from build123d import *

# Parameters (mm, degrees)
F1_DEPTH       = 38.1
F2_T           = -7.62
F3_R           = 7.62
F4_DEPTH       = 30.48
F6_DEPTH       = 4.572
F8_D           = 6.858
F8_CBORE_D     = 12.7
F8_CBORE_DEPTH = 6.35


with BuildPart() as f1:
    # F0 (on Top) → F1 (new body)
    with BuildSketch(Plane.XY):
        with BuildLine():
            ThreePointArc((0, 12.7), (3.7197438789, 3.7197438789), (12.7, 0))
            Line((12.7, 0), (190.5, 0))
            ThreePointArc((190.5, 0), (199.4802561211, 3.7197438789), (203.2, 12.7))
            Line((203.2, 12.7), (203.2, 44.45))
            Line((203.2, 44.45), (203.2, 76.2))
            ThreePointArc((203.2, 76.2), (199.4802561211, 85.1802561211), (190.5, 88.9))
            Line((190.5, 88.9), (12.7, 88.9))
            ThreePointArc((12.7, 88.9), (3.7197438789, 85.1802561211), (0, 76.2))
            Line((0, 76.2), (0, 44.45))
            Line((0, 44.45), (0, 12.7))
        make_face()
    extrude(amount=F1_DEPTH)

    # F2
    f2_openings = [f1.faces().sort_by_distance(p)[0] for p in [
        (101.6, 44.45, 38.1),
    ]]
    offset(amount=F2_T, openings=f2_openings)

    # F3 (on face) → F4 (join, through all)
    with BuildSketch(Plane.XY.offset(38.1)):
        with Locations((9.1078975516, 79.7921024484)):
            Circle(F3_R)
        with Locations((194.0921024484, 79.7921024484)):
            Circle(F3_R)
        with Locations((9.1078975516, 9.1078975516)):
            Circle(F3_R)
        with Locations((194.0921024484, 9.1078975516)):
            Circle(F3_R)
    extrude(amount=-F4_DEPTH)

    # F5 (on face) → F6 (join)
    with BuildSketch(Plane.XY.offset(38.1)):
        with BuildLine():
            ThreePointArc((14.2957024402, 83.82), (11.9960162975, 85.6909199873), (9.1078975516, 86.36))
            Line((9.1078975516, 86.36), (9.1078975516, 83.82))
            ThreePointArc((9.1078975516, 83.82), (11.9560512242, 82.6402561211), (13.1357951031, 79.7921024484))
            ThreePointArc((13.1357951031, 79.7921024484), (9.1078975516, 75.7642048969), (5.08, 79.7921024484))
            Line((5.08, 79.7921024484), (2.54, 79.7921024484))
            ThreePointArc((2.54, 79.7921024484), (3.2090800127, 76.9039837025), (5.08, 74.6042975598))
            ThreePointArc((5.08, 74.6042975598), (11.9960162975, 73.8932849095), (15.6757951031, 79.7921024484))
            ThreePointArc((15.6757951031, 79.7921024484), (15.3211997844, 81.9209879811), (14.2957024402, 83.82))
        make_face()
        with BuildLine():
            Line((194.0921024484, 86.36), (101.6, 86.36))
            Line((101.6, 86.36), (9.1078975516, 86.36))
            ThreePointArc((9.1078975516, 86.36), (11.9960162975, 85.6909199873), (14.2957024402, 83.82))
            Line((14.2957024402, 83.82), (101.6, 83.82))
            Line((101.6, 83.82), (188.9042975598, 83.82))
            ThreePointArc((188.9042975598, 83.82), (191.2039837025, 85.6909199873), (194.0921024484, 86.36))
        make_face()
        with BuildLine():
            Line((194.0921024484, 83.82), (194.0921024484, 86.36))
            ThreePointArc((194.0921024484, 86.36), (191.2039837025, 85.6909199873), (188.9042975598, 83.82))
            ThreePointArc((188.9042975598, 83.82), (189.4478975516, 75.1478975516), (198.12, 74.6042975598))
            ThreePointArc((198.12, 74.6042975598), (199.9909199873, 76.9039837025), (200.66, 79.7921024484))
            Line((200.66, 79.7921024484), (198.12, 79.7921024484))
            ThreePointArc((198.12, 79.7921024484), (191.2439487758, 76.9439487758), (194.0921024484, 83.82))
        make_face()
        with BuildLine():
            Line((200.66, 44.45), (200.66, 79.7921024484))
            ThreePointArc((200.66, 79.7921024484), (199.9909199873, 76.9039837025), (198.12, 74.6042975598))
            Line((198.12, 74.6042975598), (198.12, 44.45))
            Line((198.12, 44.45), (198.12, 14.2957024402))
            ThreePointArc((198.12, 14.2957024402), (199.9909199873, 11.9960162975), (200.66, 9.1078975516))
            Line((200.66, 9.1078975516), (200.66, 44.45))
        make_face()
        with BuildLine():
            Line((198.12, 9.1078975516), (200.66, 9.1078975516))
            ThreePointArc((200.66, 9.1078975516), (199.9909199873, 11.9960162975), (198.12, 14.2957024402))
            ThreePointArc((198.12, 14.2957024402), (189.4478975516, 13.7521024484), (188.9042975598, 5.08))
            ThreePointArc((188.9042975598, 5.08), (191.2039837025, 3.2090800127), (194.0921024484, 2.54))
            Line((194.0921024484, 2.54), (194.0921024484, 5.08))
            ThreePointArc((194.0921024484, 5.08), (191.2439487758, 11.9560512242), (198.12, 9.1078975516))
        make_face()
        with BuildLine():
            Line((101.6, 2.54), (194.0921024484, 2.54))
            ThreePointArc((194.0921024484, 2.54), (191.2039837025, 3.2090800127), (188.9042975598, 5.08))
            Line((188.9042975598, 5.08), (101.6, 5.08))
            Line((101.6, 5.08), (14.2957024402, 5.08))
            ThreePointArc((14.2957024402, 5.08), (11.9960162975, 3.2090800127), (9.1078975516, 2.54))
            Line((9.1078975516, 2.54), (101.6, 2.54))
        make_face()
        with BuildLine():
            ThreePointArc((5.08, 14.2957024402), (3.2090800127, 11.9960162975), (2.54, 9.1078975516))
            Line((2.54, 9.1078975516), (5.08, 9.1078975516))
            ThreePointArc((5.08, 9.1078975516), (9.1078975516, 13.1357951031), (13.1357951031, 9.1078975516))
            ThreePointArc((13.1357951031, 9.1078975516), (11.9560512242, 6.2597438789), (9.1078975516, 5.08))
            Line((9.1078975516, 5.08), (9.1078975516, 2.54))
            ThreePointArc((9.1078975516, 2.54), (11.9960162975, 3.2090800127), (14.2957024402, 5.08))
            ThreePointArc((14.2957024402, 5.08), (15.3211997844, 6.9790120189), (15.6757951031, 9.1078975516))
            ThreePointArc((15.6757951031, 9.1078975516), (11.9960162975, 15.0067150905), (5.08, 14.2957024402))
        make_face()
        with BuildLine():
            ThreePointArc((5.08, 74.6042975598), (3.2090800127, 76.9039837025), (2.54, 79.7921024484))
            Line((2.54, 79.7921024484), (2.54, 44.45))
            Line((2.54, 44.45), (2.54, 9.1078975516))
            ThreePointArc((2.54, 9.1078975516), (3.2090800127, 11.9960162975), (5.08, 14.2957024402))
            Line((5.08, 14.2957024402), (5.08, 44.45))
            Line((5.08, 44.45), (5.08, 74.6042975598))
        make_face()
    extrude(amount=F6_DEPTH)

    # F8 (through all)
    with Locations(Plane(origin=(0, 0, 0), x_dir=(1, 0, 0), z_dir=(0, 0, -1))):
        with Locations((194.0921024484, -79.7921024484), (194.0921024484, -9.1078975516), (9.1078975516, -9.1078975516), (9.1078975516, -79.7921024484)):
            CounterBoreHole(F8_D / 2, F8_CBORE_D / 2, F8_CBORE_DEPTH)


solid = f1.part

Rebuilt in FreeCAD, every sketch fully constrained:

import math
import FreeCAD as App
import Part
import Sketcher
Q = App.Units.Quantity


def faces_at(feature, points):
    """Names of the faces that lie closest to the given points."""
    faces = feature.Shape.Faces
    near = lambda p: min(range(len(faces)), key=lambda i: faces[i].distToShape(Part.Vertex(*p))[0])
    return sorted({f"Face{near(p) + 1}" for p in points})

doc = App.newDocument("Part")
body = doc.addObject("PartDesign::Body", "Body")

sketch1 = body.newObject("Sketcher::SketchObject", "Sketch")
sketch1.AttachmentSupport = (doc.getObject("XY_Plane"), [""])
sketch1.MapMode = "FlatFace"
sketch1.addGeometry(Part.ArcOfCircle(Part.Circle(App.Vector(12.7, 12.7, 0), App.Vector(0, 0, 1), 12.7), math.radians(180), math.radians(270)), False)
sketch1.addGeometry(Part.LineSegment(App.Vector(12.7, 0, 0), App.Vector(190.5, 0, 0)), False)
sketch1.addGeometry(Part.ArcOfCircle(Part.Circle(App.Vector(190.5, 12.7, 0), App.Vector(0, 0, 1), 12.7), math.radians(-90), math.radians(0)), False)
sketch1.addGeometry(Part.LineSegment(App.Vector(203.2, 12.7, 0), App.Vector(203.2, 76.2, 0)), False)
sketch1.addGeometry(Part.ArcOfCircle(Part.Circle(App.Vector(190.5, 76.2, 0), App.Vector(0, 0, 1), 12.7), math.radians(0), math.radians(90)), False)
sketch1.addGeometry(Part.LineSegment(App.Vector(190.5, 88.9, 0), App.Vector(12.7, 88.9, 0)), False)
sketch1.addGeometry(Part.ArcOfCircle(Part.Circle(App.Vector(12.7, 76.2, 0), App.Vector(0, 0, 1), 12.7), math.radians(90), math.radians(180)), False)
sketch1.addGeometry(Part.LineSegment(App.Vector(0, 76.2, 0), App.Vector(0, 12.7, 0)), False)
sketch1.addConstraint(Sketcher.Constraint("Tangent", 0, 2, 1, 1))
sketch1.addConstraint(Sketcher.Constraint("Tangent", 1, 2, 2, 1))
sketch1.addConstraint(Sketcher.Constraint("Tangent", 2, 2, 3, 1))
sketch1.addConstraint(Sketcher.Constraint("Tangent", 3, 2, 4, 1))
sketch1.addConstraint(Sketcher.Constraint("Tangent", 4, 2, 5, 1))
sketch1.addConstraint(Sketcher.Constraint("Tangent", 5, 2, 6, 1))
sketch1.addConstraint(Sketcher.Constraint("Tangent", 6, 2, 7, 1))
sketch1.addConstraint(Sketcher.Constraint("Tangent", 7, 2, 0, 1))
sketch1.addConstraint(Sketcher.Constraint("Horizontal", 1))
sketch1.addConstraint(Sketcher.Constraint("Vertical", 3))
sketch1.addConstraint(Sketcher.Constraint("Horizontal", 5))
sketch1.addConstraint(Sketcher.Constraint("Vertical", 7))
sketch1.addConstraint(Sketcher.Constraint("Equal", 0, 2))
sketch1.addConstraint(Sketcher.Constraint("Equal", 2, 4))
sketch1.addConstraint(Sketcher.Constraint("Equal", 4, 6))
sketch1.addConstraint(Sketcher.Constraint("PointOnObject", 0, 2, -1))
sketch1.addConstraint(Sketcher.Constraint("PointOnObject", 6, 2, -2))
sketch1.addConstraint(Sketcher.Constraint("Radius", 0, Q("0.5 in")))
sketch1.addConstraint(Sketcher.Constraint("DistanceX", 1, 1, 1, 2, Q("7 in")))
sketch1.addConstraint(Sketcher.Constraint("DistanceY", 3, 1, 3, 2, Q("2.5 in")))
pad1 = body.newObject("PartDesign::Pad", "Pad")
pad1.Profile = sketch1
pad1.Length = Q("1.5 in")
doc.recompute()

thickness = body.newObject("PartDesign::Thickness", "Thickness")
thickness.Base = (pad1, faces_at(pad1, [(101.6, 44.45, 38.1)]))
thickness.Value = Q("0.3 in")
thickness.Reversed = True
thickness.Join = "Arc"

sketch2 = body.newObject("Sketcher::SketchObject", "Sketch001")
sketch2.AttachmentSupport = (doc.getObject("XY_Plane"), [""])
sketch2.MapMode = "FlatFace"
sketch2.AttachmentOffset = App.Placement(App.Vector(0, 0, 1.5 * 25.4), App.Rotation())
sketch2.addGeometry(Part.Circle(App.Vector(9.107898, 79.792102, 0), App.Vector(0, 0, 1), 7.62), False)
sketch2.addGeometry(Part.Circle(App.Vector(194.092102, 79.792102, 0), App.Vector(0, 0, 1), 7.62), False)
sketch2.addGeometry(Part.Circle(App.Vector(9.107898, 9.107898, 0), App.Vector(0, 0, 1), 7.62), False)
sketch2.addGeometry(Part.Circle(App.Vector(194.092102, 9.107898, 0), App.Vector(0, 0, 1), 7.62), False)
sketch2.addConstraint(Sketcher.Constraint("Equal", 0, 1))
sketch2.addConstraint(Sketcher.Constraint("Equal", 1, 2))
sketch2.addConstraint(Sketcher.Constraint("Equal", 2, 3))
sketch2.addConstraint(Sketcher.Constraint("Horizontal", 0, 3, 1, 3))
sketch2.addConstraint(Sketcher.Constraint("Horizontal", 2, 3, 3, 3))
sketch2.addConstraint(Sketcher.Constraint("Vertical", 0, 3, 2, 3))
sketch2.addConstraint(Sketcher.Constraint("Vertical", 1, 3, 3, 3))
sketch2.addConstraint(Sketcher.Constraint("Diameter", 0, Q("0.6 in")))
sketch2.addConstraint(Sketcher.Constraint("DistanceX", -1, 1, 0, 3, Q("9.107898 mm")))
sketch2.addConstraint(Sketcher.Constraint("DistanceY", -1, 1, 0, 3, Q("79.792102 mm")))
sketch2.addConstraint(Sketcher.Constraint("DistanceX", -1, 1, 1, 3, Q("194.092102 mm")))
sketch2.addConstraint(Sketcher.Constraint("DistanceY", -1, 1, 2, 3, Q("9.107898 mm")))
pad2 = body.newObject("PartDesign::Pad", "Pad001")
pad2.Profile = sketch2
pad2.Type = "UpToLast"
pad2.Reversed = True

sketch3 = body.newObject("Sketcher::SketchObject", "Sketch002")
sketch3.AttachmentSupport = (doc.getObject("XY_Plane"), [""])
sketch3.MapMode = "FlatFace"
sketch3.AttachmentOffset = App.Placement(App.Vector(0, 0, 1.5 * 25.4), App.Rotation())
sketch3.addGeometry(Part.LineSegment(App.Vector(9.107898, 86.36, 0), App.Vector(9.107898, 83.82, 0)), False)
sketch3.addGeometry(Part.ArcOfCircle(Part.Circle(App.Vector(9.107898, 79.792102, 0), App.Vector(0, 0, 1), 4.027898), math.radians(0), math.radians(90)), False)
sketch3.addGeometry(Part.ArcOfCircle(Part.Circle(App.Vector(9.107898, 79.792102, 0), App.Vector(0, 0, 1), 4.027898), math.radians(180), math.radians(360)), False)
sketch3.addGeometry(Part.LineSegment(App.Vector(5.08, 79.792102, 0), App.Vector(2.54, 79.792102, 0)), False)
sketch3.addGeometry(Part.LineSegment(App.Vector(2.54, 79.792102, 0), App.Vector(2.54, 9.107898, 0)), False)
sketch3.addGeometry(Part.LineSegment(App.Vector(2.54, 9.107898, 0), App.Vector(5.08, 9.107898, 0)), False)
sketch3.addGeometry(Part.ArcOfCircle(Part.Circle(App.Vector(9.107898, 9.107898, 0), App.Vector(0, 0, 1), 4.027898), math.radians(0), math.radians(180)), False)
sketch3.addGeometry(Part.ArcOfCircle(Part.Circle(App.Vector(9.107898, 9.107898, 0), App.Vector(0, 0, 1), 4.027898), math.radians(-90), math.radians(0)), False)
sketch3.addGeometry(Part.LineSegment(App.Vector(9.107898, 5.08, 0), App.Vector(9.107898, 2.54, 0)), False)
sketch3.addGeometry(Part.LineSegment(App.Vector(9.107898, 2.54, 0), App.Vector(194.092102, 2.54, 0)), False)
sketch3.addGeometry(Part.LineSegment(App.Vector(194.092102, 2.54, 0), App.Vector(194.092102, 5.08, 0)), False)
sketch3.addGeometry(Part.ArcOfCircle(Part.Circle(App.Vector(194.092102, 9.107898, 0), App.Vector(0, 0, 1), 4.027898), math.radians(0), math.radians(270)), False)
sketch3.addGeometry(Part.LineSegment(App.Vector(198.12, 9.107898, 0), App.Vector(200.66, 9.107898, 0)), False)
sketch3.addGeometry(Part.LineSegment(App.Vector(200.66, 9.107898, 0), App.Vector(200.66, 79.792102, 0)), False)
sketch3.addGeometry(Part.LineSegment(App.Vector(200.66, 79.792102, 0), App.Vector(198.12, 79.792102, 0)), False)
sketch3.addGeometry(Part.ArcOfCircle(Part.Circle(App.Vector(194.092102, 79.792102, 0), App.Vector(0, 0, 1), 4.027898), math.radians(90), math.radians(360)), False)
sketch3.addGeometry(Part.LineSegment(App.Vector(194.092102, 83.82, 0), App.Vector(194.092102, 86.36, 0)), False)
sketch3.addGeometry(Part.LineSegment(App.Vector(194.092102, 86.36, 0), App.Vector(9.107898, 86.36, 0)), False)
sketch3.addGeometry(Part.ArcOfCircle(Part.Circle(App.Vector(9.107898, 79.792102, 0), App.Vector(0, 0, 1), 6.567898), math.radians(-127.826356), math.radians(0)), False)
sketch3.addGeometry(Part.ArcOfCircle(Part.Circle(App.Vector(9.107898, 79.792102, 0), App.Vector(0, 0, 1), 6.567898), math.radians(0), math.radians(37.826356)), False)
sketch3.addGeometry(Part.LineSegment(App.Vector(14.295702, 83.82, 0), App.Vector(188.904298, 83.82, 0)), False)
sketch3.addGeometry(Part.ArcOfCircle(Part.Circle(App.Vector(194.092102, 79.792102, 0), App.Vector(0, 0, 1), 6.567898), math.radians(142.173644), math.radians(307.826356)), False)
sketch3.addGeometry(Part.LineSegment(App.Vector(198.12, 74.604298, 0), App.Vector(198.12, 14.295702, 0)), False)
sketch3.addGeometry(Part.ArcOfCircle(Part.Circle(App.Vector(194.092102, 9.107898, 0), App.Vector(0, 0, 1), 6.567898), math.radians(52.173644), math.radians(217.826356)), False)
sketch3.addGeometry(Part.LineSegment(App.Vector(188.904298, 5.08, 0), App.Vector(14.295702, 5.08, 0)), False)
sketch3.addGeometry(Part.ArcOfCircle(Part.Circle(App.Vector(9.107898, 9.107898, 0), App.Vector(0, 0, 1), 6.567898), math.radians(-37.826356), math.radians(0)), False)
sketch3.addGeometry(Part.ArcOfCircle(Part.Circle(App.Vector(9.107898, 9.107898, 0), App.Vector(0, 0, 1), 6.567898), math.radians(0), math.radians(127.826356)), False)
sketch3.addGeometry(Part.LineSegment(App.Vector(5.08, 14.295702, 0), App.Vector(5.08, 74.604298, 0)), False)
sketch3.addConstraint(Sketcher.Constraint("Coincident", 0, 2, 1, 2))
sketch3.addConstraint(Sketcher.Constraint("Tangent", 1, 1, 2, 2))
sketch3.addConstraint(Sketcher.Constraint("Coincident", 2, 1, 3, 1))
sketch3.addConstraint(Sketcher.Constraint("Coincident", 3, 2, 4, 1))
sketch3.addConstraint(Sketcher.Constraint("Coincident", 4, 2, 5, 1))
sketch3.addConstraint(Sketcher.Constraint("Coincident", 5, 2, 6, 2))
sketch3.addConstraint(Sketcher.Constraint("Tangent", 6, 1, 7, 2))
sketch3.addConstraint(Sketcher.Constraint("Coincident", 7, 1, 8, 1))
sketch3.addConstraint(Sketcher.Constraint("Coincident", 8, 2, 9, 1))
sketch3.addConstraint(Sketcher.Constraint("Coincident", 9, 2, 10, 1))
sketch3.addConstraint(Sketcher.Constraint("Coincident", 10, 2, 11, 2))
sketch3.addConstraint(Sketcher.Constraint("Coincident", 11, 1, 12, 1))
sketch3.addConstraint(Sketcher.Constraint("Coincident", 12, 2, 13, 1))
sketch3.addConstraint(Sketcher.Constraint("Coincident", 13, 2, 14, 1))
sketch3.addConstraint(Sketcher.Constraint("Coincident", 14, 2, 15, 2))
sketch3.addConstraint(Sketcher.Constraint("Coincident", 15, 1, 16, 1))
sketch3.addConstraint(Sketcher.Constraint("Coincident", 16, 2, 17, 1))
sketch3.addConstraint(Sketcher.Constraint("Coincident", 17, 2, 0, 1))
sketch3.addConstraint(Sketcher.Constraint("Tangent", 18, 2, 19, 1))
sketch3.addConstraint(Sketcher.Constraint("Coincident", 19, 2, 20, 1))
sketch3.addConstraint(Sketcher.Constraint("Coincident", 20, 2, 21, 1))
sketch3.addConstraint(Sketcher.Constraint("Coincident", 21, 2, 22, 1))
sketch3.addConstraint(Sketcher.Constraint("Coincident", 22, 2, 23, 1))
sketch3.addConstraint(Sketcher.Constraint("Coincident", 23, 2, 24, 1))
sketch3.addConstraint(Sketcher.Constraint("Coincident", 24, 2, 25, 1))
sketch3.addConstraint(Sketcher.Constraint("Tangent", 25, 2, 26, 1))
sketch3.addConstraint(Sketcher.Constraint("Coincident", 26, 2, 27, 1))
sketch3.addConstraint(Sketcher.Constraint("Coincident", 27, 2, 18, 1))
sketch3.addConstraint(Sketcher.Constraint("Vertical", 0))
sketch3.addConstraint(Sketcher.Constraint("Horizontal", 3))
sketch3.addConstraint(Sketcher.Constraint("Vertical", 4))
sketch3.addConstraint(Sketcher.Constraint("Horizontal", 5))
sketch3.addConstraint(Sketcher.Constraint("Vertical", 8))
sketch3.addConstraint(Sketcher.Constraint("Horizontal", 9))
sketch3.addConstraint(Sketcher.Constraint("Vertical", 10))
sketch3.addConstraint(Sketcher.Constraint("Horizontal", 12))
sketch3.addConstraint(Sketcher.Constraint("Vertical", 13))
sketch3.addConstraint(Sketcher.Constraint("Horizontal", 14))
sketch3.addConstraint(Sketcher.Constraint("Vertical", 16))
sketch3.addConstraint(Sketcher.Constraint("Horizontal", 17))
sketch3.addConstraint(Sketcher.Constraint("Horizontal", 20))
sketch3.addConstraint(Sketcher.Constraint("Vertical", 22))
sketch3.addConstraint(Sketcher.Constraint("Horizontal", 24))
sketch3.addConstraint(Sketcher.Constraint("Vertical", 27))
sketch3.addConstraint(Sketcher.Constraint("Coincident", 18, 3, 1, 3))
sketch3.addConstraint(Sketcher.Constraint("Coincident", 21, 3, 15, 3))
sketch3.addConstraint(Sketcher.Constraint("Coincident", 23, 3, 11, 3))
sketch3.addConstraint(Sketcher.Constraint("Coincident", 25, 3, 6, 3))
sketch3.addConstraint(Sketcher.Constraint("Equal", 1, 2))
sketch3.addConstraint(Sketcher.Constraint("Equal", 2, 6))
sketch3.addConstraint(Sketcher.Constraint("Equal", 6, 7))
sketch3.addConstraint(Sketcher.Constraint("Equal", 7, 11))
sketch3.addConstraint(Sketcher.Constraint("Equal", 11, 15))
sketch3.addConstraint(Sketcher.Constraint("Equal", 18, 19))
sketch3.addConstraint(Sketcher.Constraint("Equal", 19, 21))
sketch3.addConstraint(Sketcher.Constraint("Equal", 21, 23))
sketch3.addConstraint(Sketcher.Constraint("Equal", 23, 25))
sketch3.addConstraint(Sketcher.Constraint("Equal", 25, 26))
sketch3.addConstraint(Sketcher.Constraint("Horizontal", 7, 3, 11, 3))
sketch3.addConstraint(Sketcher.Constraint("Horizontal", 2, 3, 15, 3))
sketch3.addConstraint(Sketcher.Constraint("Horizontal", 21, 3, 1, 1))
sketch3.addConstraint(Sketcher.Constraint("Horizontal", 1, 1, 2, 1))
sketch3.addConstraint(Sketcher.Constraint("Horizontal", 26, 3, 4, 2))
sketch3.addConstraint(Sketcher.Constraint("Horizontal", 5, 2, 6, 1))
sketch3.addConstraint(Sketcher.Constraint("Horizontal", 6, 1, 11, 1))
sketch3.addConstraint(Sketcher.Constraint("Horizontal", 3, 2, 13, 2))
sketch3.addConstraint(Sketcher.Constraint("Horizontal", 14, 2, 18, 2))
sketch3.addConstraint(Sketcher.Constraint("Horizontal", 15, 1, 19, 2))
sketch3.addConstraint(Sketcher.Constraint("Horizontal", 10, 2, 23, 2))
sketch3.addConstraint(Sketcher.Constraint("Horizontal", 12, 2, 25, 2))
sketch3.addConstraint(Sketcher.Constraint("Horizontal", 22, 2, 26, 2))
sketch3.addConstraint(Sketcher.Constraint("Horizontal", 21, 2, 27, 2))
sketch3.addConstraint(Sketcher.Constraint("Vertical", 2, 3, 6, 3))
sketch3.addConstraint(Sketcher.Constraint("Vertical", 26, 3, 0, 2))
sketch3.addConstraint(Sketcher.Constraint("Vertical", 0, 2, 7, 1))
sketch3.addConstraint(Sketcher.Constraint("Vertical", 23, 3, 9, 2))
sketch3.addConstraint(Sketcher.Constraint("Vertical", 10, 2, 15, 1))
sketch3.addConstraint(Sketcher.Constraint("Vertical", 14, 2, 21, 2))
sketch3.addConstraint(Sketcher.Constraint("Equal", 5, 12))
sketch3.addConstraint(Sketcher.Constraint("Equal", 14, 0))
sketch3.addConstraint(Sketcher.Constraint("Equal", 0, 8))
sketch3.addConstraint(Sketcher.Constraint("DistanceX", 3, 2, 3, 1, Q("0.1 in")))
sketch3.addConstraint(Sketcher.Constraint("DistanceY", -1, 1, 0, 2, Q("3.3 in")))
sketch3.addConstraint(Sketcher.Constraint("DistanceX", -1, 1, 2, 1, Q("0.2 in")))
sketch3.addConstraint(Sketcher.Constraint("DistanceY", -1, 1, 7, 1, Q("0.2 in")))
sketch3.addConstraint(Sketcher.Constraint("DistanceX", -1, 1, 11, 1, Q("7.8 in")))
sketch3.addConstraint(Sketcher.Constraint("DistanceX", 1, 1, 18, 2, Q("0.1 in")))
sketch3.addConstraint(Sketcher.Constraint("Radius", 1, Q("4.027898 mm")))
pad3 = body.newObject("PartDesign::Pad", "Pad002")
pad3.Profile = sketch3
pad3.Length = Q("0.18 in")

sketch4 = body.newObject("Sketcher::SketchObject", "Sketch003")
sketch4.AttachmentSupport = (doc.getObject("XY_Plane"), [""])
sketch4.MapMode = "FlatFace"
sketch4.addGeometry(Part.Circle(App.Vector(194.092102, 79.792102, 0), App.Vector(0, 0, 1), 3.429), False)
sketch4.addGeometry(Part.Circle(App.Vector(194.092102, 9.107898, 0), App.Vector(0, 0, 1), 3.429), False)
sketch4.addGeometry(Part.Circle(App.Vector(9.107898, 9.107898, 0), App.Vector(0, 0, 1), 3.429), False)
sketch4.addGeometry(Part.Circle(App.Vector(9.107898, 79.792102, 0), App.Vector(0, 0, 1), 3.429), False)
sketch4.addConstraint(Sketcher.Constraint("Equal", 0, 1))
sketch4.addConstraint(Sketcher.Constraint("Equal", 1, 2))
sketch4.addConstraint(Sketcher.Constraint("Equal", 2, 3))
sketch4.addConstraint(Sketcher.Constraint("Horizontal", 1, 3, 2, 3))
sketch4.addConstraint(Sketcher.Constraint("Horizontal", 0, 3, 3, 3))
sketch4.addConstraint(Sketcher.Constraint("Vertical", 0, 3, 1, 3))
sketch4.addConstraint(Sketcher.Constraint("Vertical", 2, 3, 3, 3))
sketch4.addConstraint(Sketcher.Constraint("Diameter", 0, Q("0.27 in")))
sketch4.addConstraint(Sketcher.Constraint("DistanceX", -1, 1, 0, 3, Q("194.092102 mm")))
sketch4.addConstraint(Sketcher.Constraint("DistanceY", -1, 1, 0, 3, Q("79.792102 mm")))
sketch4.addConstraint(Sketcher.Constraint("DistanceY", -1, 1, 1, 3, Q("9.107898 mm")))
sketch4.addConstraint(Sketcher.Constraint("DistanceX", -1, 1, 2, 3, Q("9.107898 mm")))
doc.recompute()
hole = body.newObject("PartDesign::Hole", "Hole")
hole.Profile = sketch4
hole.ThreadType = "None"
hole.Diameter = Q("0.27 in")
hole.DepthType = "ThroughAll"
hole.HoleCutType = "Counterbore"
hole.HoleCutDiameter = Q("0.5 in")
hole.HoleCutDepth = Q("0.25 in")
hole.Reversed = True

doc.recompute()
